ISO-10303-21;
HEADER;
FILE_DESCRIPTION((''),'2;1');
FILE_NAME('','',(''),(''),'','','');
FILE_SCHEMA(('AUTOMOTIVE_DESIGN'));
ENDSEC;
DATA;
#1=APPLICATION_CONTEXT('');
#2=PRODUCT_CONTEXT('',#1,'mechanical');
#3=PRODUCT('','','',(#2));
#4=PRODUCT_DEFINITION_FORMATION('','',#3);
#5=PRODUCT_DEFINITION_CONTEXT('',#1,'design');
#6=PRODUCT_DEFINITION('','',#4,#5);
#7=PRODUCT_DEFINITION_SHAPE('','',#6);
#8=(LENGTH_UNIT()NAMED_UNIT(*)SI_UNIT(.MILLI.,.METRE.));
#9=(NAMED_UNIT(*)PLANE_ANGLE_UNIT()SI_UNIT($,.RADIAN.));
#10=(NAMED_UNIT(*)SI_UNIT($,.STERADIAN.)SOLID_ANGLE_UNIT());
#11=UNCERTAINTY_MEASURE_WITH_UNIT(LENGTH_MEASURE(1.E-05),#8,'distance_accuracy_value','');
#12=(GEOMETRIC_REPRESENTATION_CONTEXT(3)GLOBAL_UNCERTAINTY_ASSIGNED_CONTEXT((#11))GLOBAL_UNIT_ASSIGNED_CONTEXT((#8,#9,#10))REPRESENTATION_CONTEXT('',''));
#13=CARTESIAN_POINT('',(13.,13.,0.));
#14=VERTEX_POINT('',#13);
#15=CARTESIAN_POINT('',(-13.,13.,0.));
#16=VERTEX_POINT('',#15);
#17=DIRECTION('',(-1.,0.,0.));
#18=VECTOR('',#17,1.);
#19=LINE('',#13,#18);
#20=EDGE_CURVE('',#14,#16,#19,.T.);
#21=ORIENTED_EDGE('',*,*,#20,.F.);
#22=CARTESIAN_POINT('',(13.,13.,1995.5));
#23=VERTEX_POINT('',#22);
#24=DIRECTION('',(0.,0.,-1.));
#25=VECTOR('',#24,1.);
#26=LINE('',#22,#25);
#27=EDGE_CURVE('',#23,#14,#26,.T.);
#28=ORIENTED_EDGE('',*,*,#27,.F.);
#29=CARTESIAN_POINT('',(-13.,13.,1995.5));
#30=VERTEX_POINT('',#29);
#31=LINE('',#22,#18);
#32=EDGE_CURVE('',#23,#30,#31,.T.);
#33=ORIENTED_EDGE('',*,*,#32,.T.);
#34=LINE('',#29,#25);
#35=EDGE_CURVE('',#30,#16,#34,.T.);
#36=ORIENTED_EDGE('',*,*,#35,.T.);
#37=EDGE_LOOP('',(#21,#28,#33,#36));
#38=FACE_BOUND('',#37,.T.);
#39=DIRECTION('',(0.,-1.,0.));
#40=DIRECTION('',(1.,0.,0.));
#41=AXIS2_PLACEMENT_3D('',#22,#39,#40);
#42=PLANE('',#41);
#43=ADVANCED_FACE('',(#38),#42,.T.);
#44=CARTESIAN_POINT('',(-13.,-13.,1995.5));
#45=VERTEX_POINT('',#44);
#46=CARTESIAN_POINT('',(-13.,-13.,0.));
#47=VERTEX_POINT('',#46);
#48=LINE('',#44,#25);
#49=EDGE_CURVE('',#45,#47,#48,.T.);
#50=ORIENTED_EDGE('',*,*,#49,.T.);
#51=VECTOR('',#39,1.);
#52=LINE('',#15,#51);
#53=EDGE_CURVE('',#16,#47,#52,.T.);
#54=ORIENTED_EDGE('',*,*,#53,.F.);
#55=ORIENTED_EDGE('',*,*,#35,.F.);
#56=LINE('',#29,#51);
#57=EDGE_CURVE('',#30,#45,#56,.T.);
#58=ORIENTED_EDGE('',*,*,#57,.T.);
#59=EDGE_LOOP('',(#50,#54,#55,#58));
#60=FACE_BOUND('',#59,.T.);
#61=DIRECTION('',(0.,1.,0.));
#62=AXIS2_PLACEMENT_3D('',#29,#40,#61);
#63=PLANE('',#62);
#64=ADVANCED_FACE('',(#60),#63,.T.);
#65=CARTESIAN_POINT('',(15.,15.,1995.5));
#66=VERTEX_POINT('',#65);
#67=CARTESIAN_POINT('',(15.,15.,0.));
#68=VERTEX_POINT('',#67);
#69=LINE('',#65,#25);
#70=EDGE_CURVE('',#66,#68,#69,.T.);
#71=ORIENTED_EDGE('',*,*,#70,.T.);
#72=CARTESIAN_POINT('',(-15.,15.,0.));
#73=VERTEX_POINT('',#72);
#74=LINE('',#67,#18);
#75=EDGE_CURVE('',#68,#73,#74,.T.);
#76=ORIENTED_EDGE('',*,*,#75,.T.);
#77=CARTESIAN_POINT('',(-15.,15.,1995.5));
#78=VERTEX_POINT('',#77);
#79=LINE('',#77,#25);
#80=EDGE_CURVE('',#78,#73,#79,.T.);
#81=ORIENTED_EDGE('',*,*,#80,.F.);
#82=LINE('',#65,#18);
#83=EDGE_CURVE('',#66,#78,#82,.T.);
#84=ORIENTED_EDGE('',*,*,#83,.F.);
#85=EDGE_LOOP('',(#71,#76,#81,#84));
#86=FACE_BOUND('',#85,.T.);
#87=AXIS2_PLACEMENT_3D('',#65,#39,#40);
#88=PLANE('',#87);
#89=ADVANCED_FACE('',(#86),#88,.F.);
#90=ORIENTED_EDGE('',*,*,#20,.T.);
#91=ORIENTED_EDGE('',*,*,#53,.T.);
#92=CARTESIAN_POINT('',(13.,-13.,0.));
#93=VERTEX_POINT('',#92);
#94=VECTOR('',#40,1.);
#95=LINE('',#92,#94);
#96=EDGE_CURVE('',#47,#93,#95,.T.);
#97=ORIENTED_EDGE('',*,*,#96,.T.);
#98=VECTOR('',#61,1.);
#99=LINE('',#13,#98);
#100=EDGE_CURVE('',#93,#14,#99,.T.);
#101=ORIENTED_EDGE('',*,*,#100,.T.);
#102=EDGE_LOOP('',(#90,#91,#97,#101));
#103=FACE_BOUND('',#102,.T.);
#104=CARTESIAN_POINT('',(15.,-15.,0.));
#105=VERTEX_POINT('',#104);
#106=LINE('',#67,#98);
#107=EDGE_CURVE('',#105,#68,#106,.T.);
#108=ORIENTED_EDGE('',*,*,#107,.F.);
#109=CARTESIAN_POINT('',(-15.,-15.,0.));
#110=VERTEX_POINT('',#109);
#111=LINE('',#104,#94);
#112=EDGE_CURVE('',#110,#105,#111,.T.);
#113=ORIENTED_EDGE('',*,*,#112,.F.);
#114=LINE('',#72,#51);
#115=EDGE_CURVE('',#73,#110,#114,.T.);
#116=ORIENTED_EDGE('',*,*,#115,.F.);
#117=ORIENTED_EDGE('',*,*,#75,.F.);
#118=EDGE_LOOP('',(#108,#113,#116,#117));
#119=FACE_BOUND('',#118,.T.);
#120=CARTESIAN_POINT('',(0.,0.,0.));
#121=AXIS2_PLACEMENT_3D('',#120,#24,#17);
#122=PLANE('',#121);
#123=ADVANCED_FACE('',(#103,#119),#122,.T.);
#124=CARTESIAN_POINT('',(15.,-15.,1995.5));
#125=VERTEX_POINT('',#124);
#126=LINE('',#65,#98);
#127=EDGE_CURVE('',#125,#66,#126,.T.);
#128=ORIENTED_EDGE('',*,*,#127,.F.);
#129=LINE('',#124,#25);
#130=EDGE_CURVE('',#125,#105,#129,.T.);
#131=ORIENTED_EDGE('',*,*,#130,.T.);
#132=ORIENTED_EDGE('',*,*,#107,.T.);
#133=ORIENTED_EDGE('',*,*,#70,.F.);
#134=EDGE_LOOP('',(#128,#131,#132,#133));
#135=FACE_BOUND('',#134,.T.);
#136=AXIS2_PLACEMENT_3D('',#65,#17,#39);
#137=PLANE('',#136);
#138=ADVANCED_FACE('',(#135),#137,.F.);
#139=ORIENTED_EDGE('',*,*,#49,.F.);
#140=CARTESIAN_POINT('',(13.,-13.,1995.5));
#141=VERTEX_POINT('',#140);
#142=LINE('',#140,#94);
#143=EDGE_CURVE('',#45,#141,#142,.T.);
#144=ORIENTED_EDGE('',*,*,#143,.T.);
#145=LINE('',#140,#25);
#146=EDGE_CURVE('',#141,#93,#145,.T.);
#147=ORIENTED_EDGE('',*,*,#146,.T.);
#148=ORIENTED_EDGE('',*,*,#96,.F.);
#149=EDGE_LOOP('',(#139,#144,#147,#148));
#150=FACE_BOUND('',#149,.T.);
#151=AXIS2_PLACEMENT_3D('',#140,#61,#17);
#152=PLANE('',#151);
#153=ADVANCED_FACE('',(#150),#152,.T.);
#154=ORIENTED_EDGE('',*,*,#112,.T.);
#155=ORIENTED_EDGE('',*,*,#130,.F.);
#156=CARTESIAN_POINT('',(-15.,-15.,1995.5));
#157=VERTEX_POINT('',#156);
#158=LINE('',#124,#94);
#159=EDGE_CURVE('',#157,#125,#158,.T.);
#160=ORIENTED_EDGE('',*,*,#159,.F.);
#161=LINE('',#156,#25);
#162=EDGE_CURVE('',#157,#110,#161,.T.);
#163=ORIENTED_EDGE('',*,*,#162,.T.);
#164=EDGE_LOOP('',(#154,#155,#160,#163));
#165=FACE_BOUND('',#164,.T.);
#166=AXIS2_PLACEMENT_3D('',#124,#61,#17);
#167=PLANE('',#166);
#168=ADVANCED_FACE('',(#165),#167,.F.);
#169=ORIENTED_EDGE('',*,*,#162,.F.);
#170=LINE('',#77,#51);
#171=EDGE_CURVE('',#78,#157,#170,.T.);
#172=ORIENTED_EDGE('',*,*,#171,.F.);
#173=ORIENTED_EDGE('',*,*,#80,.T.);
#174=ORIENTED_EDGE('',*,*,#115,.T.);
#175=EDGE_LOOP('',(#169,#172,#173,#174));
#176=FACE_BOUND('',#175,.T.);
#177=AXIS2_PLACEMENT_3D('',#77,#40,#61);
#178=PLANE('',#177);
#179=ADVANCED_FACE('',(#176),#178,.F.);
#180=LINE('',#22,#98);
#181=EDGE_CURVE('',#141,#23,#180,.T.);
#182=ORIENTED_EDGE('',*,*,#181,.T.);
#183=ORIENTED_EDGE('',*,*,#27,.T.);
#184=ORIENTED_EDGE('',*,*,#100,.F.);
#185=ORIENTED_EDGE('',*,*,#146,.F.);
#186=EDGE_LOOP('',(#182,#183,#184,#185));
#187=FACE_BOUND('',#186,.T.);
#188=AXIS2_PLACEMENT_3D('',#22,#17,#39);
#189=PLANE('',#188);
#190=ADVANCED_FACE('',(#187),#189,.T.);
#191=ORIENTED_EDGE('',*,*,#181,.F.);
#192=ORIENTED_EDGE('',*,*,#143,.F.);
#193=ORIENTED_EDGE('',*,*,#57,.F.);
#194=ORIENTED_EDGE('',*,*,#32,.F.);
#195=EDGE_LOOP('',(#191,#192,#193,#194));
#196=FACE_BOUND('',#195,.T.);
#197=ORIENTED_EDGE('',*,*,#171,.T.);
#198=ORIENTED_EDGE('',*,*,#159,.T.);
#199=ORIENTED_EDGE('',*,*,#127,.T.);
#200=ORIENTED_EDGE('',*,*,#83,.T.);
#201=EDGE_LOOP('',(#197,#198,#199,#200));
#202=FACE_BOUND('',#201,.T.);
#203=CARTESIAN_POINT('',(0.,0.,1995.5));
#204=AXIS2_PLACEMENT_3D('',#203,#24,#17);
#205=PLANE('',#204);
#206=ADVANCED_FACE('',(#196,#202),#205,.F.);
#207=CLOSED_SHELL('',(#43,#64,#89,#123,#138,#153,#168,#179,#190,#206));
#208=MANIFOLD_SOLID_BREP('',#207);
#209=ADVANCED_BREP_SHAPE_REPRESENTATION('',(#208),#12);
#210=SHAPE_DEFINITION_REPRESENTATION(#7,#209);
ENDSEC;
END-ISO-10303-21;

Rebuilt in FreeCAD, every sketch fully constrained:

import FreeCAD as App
import Part
import Sketcher

doc = App.newDocument("Part")
body = doc.addObject("PartDesign::Body", "Body")

# Sketch on XY plane
sketch1 = body.newObject("Sketcher::SketchObject", "Sketch")
sketch1.AttachmentSupport = (doc.getObject("XY_Plane"), [""])
sketch1.MapMode = "FlatFace"
sketch1.addGeometry(Part.LineSegment(App.Vector(-15, 15, 0), App.Vector(-15, -15, 0)), False)
sketch1.addGeometry(Part.LineSegment(App.Vector(-15, -15, 0), App.Vector(15, -15, 0)), False)
sketch1.addGeometry(Part.LineSegment(App.Vector(15, -15, 0), App.Vector(15, 15, 0)), False)
sketch1.addGeometry(Part.LineSegment(App.Vector(15, 15, 0), App.Vector(-15, 15, 0)), False)
sketch1.addGeometry(Part.LineSegment(App.Vector(13, -13, 0), App.Vector(-13, -13, 0)), False)
sketch1.addGeometry(Part.LineSegment(App.Vector(-13, -13, 0), App.Vector(-13, 13, 0)), False)
sketch1.addGeometry(Part.LineSegment(App.Vector(-13, 13, 0), App.Vector(13, 13, 0)), False)
sketch1.addGeometry(Part.LineSegment(App.Vector(13, 13, 0), App.Vector(13, -13, 0)), False)
sketch1.addConstraint(Sketcher.Constraint("Coincident", 0, 2, 1, 1))
sketch1.addConstraint(Sketcher.Constraint("Coincident", 1, 2, 2, 1))
sketch1.addConstraint(Sketcher.Constraint("Coincident", 2, 2, 3, 1))
sketch1.addConstraint(Sketcher.Constraint("Coincident", 3, 2, 0, 1))
sketch1.addConstraint(Sketcher.Constraint("Coincident", 4, 2, 5, 1))
sketch1.addConstraint(Sketcher.Constraint("Coincident", 5, 2, 6, 1))
sketch1.addConstraint(Sketcher.Constraint("Coincident", 6, 2, 7, 1))
sketch1.addConstraint(Sketcher.Constraint("Coincident", 7, 2, 4, 1))
sketch1.addConstraint(Sketcher.Constraint("Vertical", 0))
sketch1.addConstraint(Sketcher.Constraint("Horizontal", 1))
sketch1.addConstraint(Sketcher.Constraint("Vertical", 2))
sketch1.addConstraint(Sketcher.Constraint("Horizontal", 3))
sketch1.addConstraint(Sketcher.Constraint("Horizontal", 4))
sketch1.addConstraint(Sketcher.Constraint("Vertical", 5))
sketch1.addConstraint(Sketcher.Constraint("Horizontal", 6))
sketch1.addConstraint(Sketcher.Constraint("Vertical", 7))
sketch1.addConstraint(Sketcher.Constraint("Symmetric", 0, 2, 2, 2, -1, 1))
sketch1.addConstraint(Sketcher.Constraint("Symmetric", 4, 2, 6, 2, -1, 1))
sketch1.addConstraint(Sketcher.Constraint("Equal", 3, 0))
sketch1.addConstraint(Sketcher.Constraint("Equal", 6, 5))
sketch1.addConstraint(Sketcher.Constraint("DistanceX", 1, 1, 1, 2, 30.0))
sketch1.addConstraint(Sketcher.Constraint("DistanceX", 4, 2, 4, 1, 26.0))
pad1 = body.newObject("PartDesign::Pad", "Pad")
pad1.Profile = sketch1
pad1.Length = 1995.5

doc.recompute()
